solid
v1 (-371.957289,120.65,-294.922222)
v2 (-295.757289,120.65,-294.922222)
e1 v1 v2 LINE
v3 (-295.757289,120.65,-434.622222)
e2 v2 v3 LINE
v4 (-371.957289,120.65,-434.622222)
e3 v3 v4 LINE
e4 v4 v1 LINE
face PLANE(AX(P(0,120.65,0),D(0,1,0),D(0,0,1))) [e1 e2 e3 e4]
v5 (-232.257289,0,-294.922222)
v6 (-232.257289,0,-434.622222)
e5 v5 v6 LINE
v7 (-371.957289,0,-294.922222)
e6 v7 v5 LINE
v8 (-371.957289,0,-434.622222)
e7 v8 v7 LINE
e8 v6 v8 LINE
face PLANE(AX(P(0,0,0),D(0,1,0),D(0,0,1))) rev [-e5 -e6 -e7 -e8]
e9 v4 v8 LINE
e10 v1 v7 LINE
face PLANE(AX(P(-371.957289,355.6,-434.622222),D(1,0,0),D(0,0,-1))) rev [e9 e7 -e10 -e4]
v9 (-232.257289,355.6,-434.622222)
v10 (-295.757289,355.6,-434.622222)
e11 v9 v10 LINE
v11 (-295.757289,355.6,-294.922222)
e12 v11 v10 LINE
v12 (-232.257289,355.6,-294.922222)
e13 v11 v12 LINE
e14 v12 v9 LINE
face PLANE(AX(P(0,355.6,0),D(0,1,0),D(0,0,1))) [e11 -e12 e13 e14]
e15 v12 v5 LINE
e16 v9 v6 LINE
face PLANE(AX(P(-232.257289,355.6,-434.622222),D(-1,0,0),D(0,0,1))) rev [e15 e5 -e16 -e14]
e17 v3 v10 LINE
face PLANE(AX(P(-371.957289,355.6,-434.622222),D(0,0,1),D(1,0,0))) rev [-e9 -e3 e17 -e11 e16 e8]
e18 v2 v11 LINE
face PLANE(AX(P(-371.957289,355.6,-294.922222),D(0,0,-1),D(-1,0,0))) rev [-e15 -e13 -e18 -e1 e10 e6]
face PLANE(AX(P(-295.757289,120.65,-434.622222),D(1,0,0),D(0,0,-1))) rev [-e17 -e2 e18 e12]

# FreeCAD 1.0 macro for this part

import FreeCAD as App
import Part
import Sketcher
from FreeCAD import Vector
Q = App.Units.Quantity


def add_polygon(sketch, points):
    """Adds a closed chain of lines whose ends are joined by coincident constraints."""
    first, n = sketch.GeometryCount, len(points)
    for a, b in zip(points, points[1:] + points[:1]):
        sketch.addGeometry(Part.LineSegment(App.Vector(*a, 0), App.Vector(*b, 0)), False)
    for i in range(n):
        sketch.addConstraint(Sketcher.Constraint("Coincident", first + i, 2, first + (i + 1) % n, 1))

doc = App.newDocument("Part")
body = doc.addObject("PartDesign::Body", "Body")

sketch1 = doc.addObject("Sketcher::SketchObject", "Sketch")
body.addObject(sketch1)
sketch1.AttachmentSupport = (doc.XZ_Plane, [""])
sketch1.MapMode = "FlatFace"
add_polygon(sketch1, [(-372, -435), (-372, -295), (-232, -295), (-232, -435)])
sketch1.addConstraint(Sketcher.Constraint("Vertical", 0))
sketch1.addConstraint(Sketcher.Constraint("Horizontal", 1))
sketch1.addConstraint(Sketcher.Constraint("Vertical", 2))
sketch1.addConstraint(Sketcher.Constraint("Horizontal", 3))
sketch1.addConstraint(Sketcher.Constraint("Equal", 3, 0))
sketch1.addConstraint(Sketcher.Constraint("DistanceX", 1, 1, 1, 2, Q("5.5 in")))
sketch1.addConstraint(Sketcher.Constraint("DistanceX", 0, 2, -1, 1, 371.957289))
sketch1.addConstraint(Sketcher.Constraint("DistanceY", 0, 2, -1, 1, 294.922222))
pad1 = doc.addObject("PartDesign::Pad", "Pad")
body.addObject(pad1)
pad1.Profile = sketch1
pad1.Length = Q("14 in")
pad1.Reversed = True

sketch2 = doc.addObject("Sketcher::SketchObject", "Sketch001")
body.addObject(sketch2)
sketch2.AttachmentSupport = (doc.XZ_Plane, [""])
sketch2.MapMode = "FlatFace"
sketch2.AttachmentOffset = App.Placement(Vector(0, 0, -14 * 25.4), App.Rotation())
add_polygon(sketch2, [(-372, -435), (-372, -295), (-296, -295), (-296, -435)])
sketch2.addConstraint(Sketcher.Constraint("Vertical", 0))
sketch2.addConstraint(Sketcher.Constraint("Horizontal", 1))
sketch2.addConstraint(Sketcher.Constraint("Vertical", 2))
sketch2.addConstraint(Sketcher.Constraint("Horizontal", 3))
sketch2.addConstraint(Sketcher.Constraint("DistanceX", 1, 1, 1, 2, Q("3 in")))
sketch2.addConstraint(Sketcher.Constraint("DistanceY", 0, 1, 0, 2, Q("5.5 in")))
sketch2.addConstraint(Sketcher.Constraint("DistanceX", 0, 2, -1, 1, 371.957289))
sketch2.addConstraint(Sketcher.Constraint("DistanceY", 0, 2, -1, 1, 294.922222))
pocket1 = doc.addObject("PartDesign::Pocket", "Pocket")
body.addObject(pocket1)
pocket1.Profile = sketch2
pocket1.Length = Q("9.25 in")
pocket1.Reversed = True

doc.recompute()
